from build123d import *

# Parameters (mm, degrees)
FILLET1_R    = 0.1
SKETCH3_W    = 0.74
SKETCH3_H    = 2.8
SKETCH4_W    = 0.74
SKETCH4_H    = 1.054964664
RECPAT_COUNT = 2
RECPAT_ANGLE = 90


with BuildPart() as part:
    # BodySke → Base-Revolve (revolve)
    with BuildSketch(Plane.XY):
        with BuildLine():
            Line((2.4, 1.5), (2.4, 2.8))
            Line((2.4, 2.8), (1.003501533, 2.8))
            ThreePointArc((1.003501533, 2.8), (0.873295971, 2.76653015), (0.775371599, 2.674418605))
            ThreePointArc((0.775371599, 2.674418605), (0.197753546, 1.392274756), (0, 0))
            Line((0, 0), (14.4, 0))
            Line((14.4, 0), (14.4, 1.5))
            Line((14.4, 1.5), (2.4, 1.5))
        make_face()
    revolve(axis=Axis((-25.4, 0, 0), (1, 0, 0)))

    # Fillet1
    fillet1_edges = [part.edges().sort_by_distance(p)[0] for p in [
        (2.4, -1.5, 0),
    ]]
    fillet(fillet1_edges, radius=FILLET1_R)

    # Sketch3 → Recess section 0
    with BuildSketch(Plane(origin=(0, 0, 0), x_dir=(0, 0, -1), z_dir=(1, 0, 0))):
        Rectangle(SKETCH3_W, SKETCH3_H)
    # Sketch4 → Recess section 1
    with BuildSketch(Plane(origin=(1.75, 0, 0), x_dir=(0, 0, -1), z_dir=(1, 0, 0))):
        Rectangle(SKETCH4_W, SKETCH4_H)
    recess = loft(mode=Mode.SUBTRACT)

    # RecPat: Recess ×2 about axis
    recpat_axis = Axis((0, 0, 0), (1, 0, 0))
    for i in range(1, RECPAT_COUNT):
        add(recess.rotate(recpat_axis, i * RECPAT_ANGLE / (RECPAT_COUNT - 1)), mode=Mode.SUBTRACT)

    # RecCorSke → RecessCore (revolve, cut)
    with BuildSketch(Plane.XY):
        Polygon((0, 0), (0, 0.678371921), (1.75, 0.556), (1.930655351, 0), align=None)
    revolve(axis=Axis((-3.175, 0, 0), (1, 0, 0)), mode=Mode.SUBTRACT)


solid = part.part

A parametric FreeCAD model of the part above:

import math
import FreeCAD as App
import Part
import Sketcher

V = App.Vector
Q = App.Units.Quantity


def edges_at(feature, points):
    """Names of the edges that pass closest to the given points."""
    edges = feature.Shape.Edges
    near = lambda p: min(range(len(edges)), key=lambda i: edges[i].distToShape(Part.Vertex(*p))[0])
    return sorted({f"Edge{near(p) + 1}" for p in points})


def add_polygon(sketch, points):
    """Adds a closed chain of lines whose ends are joined by coincident constraints."""
    first, n = sketch.GeometryCount, len(points)
    for a, b in zip(points, points[1:] + points[:1]):
        sketch.addGeometry(Part.LineSegment(App.Vector(*a, 0), App.Vector(*b, 0)), False)
    for i in range(n):
        sketch.addConstraint(Sketcher.Constraint("Coincident", first + i, 2, first + (i + 1) % n, 1))

doc = App.newDocument("Part")
body = doc.addObject("PartDesign::Body", "Body")

# Sketch on XY plane
sketch1 = doc.addObject("Sketcher::SketchObject", "Sketch")
body.addObject(sketch1)
sketch1.AttachmentSupport = (doc.XY_Plane, [""])
sketch1.MapMode = "FlatFace"
sketch1.addGeometry([
    Part.LineSegment(V(2.4, 1.5, 0), V(2.4, 2.8, 0)),  # 0
    Part.LineSegment(V(2.4, 2.8, 0), V(1, 2.8, 0)),  # 1
    Part.ArcOfCircle(Part.Circle(V(1, 2.53, 0), V(0, 0, 1), 0.27), math.radians(90), math.radians(148)),  # 2
    Part.ArcOfCircle(Part.Circle(V(5, 0, 0), V(0, 0, 1), 5), math.radians(148), math.radians(180)),  # 3
    Part.LineSegment(V(0, 0, 0), V(14.4, 0, 0)),  # 4
    Part.LineSegment(V(14.4, 0, 0), V(14.4, 1.5, 0)),  # 5
    Part.LineSegment(V(14.4, 1.5, 0), V(2.4, 1.5, 0)),  # 6
], False)
sketch1.addConstraint([
    Sketcher.Constraint("Coincident", 0, 2, 1, 1),
    Sketcher.Constraint("Tangent", 1, 2, 2, 1),
    Sketcher.Constraint("Tangent", 2, 2, 3, 1),
    Sketcher.Constraint("Coincident", 3, 2, 4, 1),
    Sketcher.Constraint("Coincident", 4, 2, 5, 1),
    Sketcher.Constraint("Coincident", 5, 2, 6, 1),
    Sketcher.Constraint("Coincident", 6, 2, 0, 1),
    Sketcher.Constraint("Vertical", 0),
    Sketcher.Constraint("Horizontal", 1),
    Sketcher.Constraint("Horizontal", 4),
    Sketcher.Constraint("Vertical", 5),
    Sketcher.Constraint("Horizontal", 6),
    Sketcher.Constraint("Coincident", 3, 2, -1, 1),
    Sketcher.Constraint("PointOnObject", 3, 3, -1),
    Sketcher.Constraint("Radius", 3, 5.0),
    Sketcher.Constraint("DistanceX", 6, 2, 6, 1, 12.0),
    Sketcher.Constraint("Radius", 2, 0.27),
    Sketcher.Constraint("DistanceX", 4, 1, 4, 2, 14.4),
    Sketcher.Constraint("DistanceY", 0, 1, 0, 2, 1.3),
    Sketcher.Constraint("DistanceY", 5, 1, 5, 2, 1.5),
])
revolution = doc.addObject("PartDesign::Revolution", "Revolution")
body.addObject(revolution)
revolution.Profile = sketch1
revolution.ReferenceAxis = (sketch1, ["H_Axis"])
revolution.Angle = 360
doc.recompute()

fillet = doc.addObject("PartDesign::Fillet", "Fillet")
body.addObject(fillet)
fillet.Base = (revolution, edges_at(revolution, [(2.4, -1.5, 0)]))
fillet.Radius = 0.1

# Sketch on YZ plane
sketch2 = doc.addObject("Sketcher::SketchObject", "Sketch001")
body.addObject(sketch2)
sketch2.AttachmentSupport = (doc.YZ_Plane, [""])
sketch2.MapMode = "FlatFace"
add_polygon(sketch2, [(1.4, 0.4), (-1.4, 0.4), (-1.4, -0.4), (1.4, -0.4)])  # lines 0-3
sketch2.addConstraint([
    Sketcher.Constraint("Horizontal", 0),
    Sketcher.Constraint("Vertical", 1),
    Sketcher.Constraint("Horizontal", 2),
    Sketcher.Constraint("Vertical", 3),
    Sketcher.Constraint("Symmetric", 0, 2, 2, 2, -1, 1),
    Sketcher.Constraint("DistanceX", 0, 2, 0, 1, 2.8),
    Sketcher.Constraint("DistanceY", 1, 2, 1, 1, 0.74),
])

# Sketch on YZ plane
sketch3 = doc.addObject("Sketcher::SketchObject", "Sketch002")
body.addObject(sketch3)
sketch3.AttachmentSupport = (doc.YZ_Plane, [""])
sketch3.MapMode = "FlatFace"
sketch3.AttachmentOffset = App.Placement(V(0, 0, 1.75), App.Rotation())
add_polygon(sketch3, [(0.5, 0.4), (-0.5, 0.4), (-0.5, -0.4), (0.5, -0.4)])  # lines 0-3
sketch3.addConstraint([
    Sketcher.Constraint("Horizontal", 0),
    Sketcher.Constraint("Vertical", 1),
    Sketcher.Constraint("Horizontal", 2),
    Sketcher.Constraint("Vertical", 3),
    Sketcher.Constraint("Symmetric", 0, 2, 2, 2, -1, 1),
    Sketcher.Constraint("DistanceY", 1, 2, 1, 1, 0.74),
    Sketcher.Constraint("DistanceX", 0, 2, 0, 1, 1.054965),
])

subtractiveloft = doc.addObject("PartDesign::SubtractiveLoft", "SubtractiveLoft")
body.addObject(subtractiveloft)
subtractiveloft.Profile = sketch2
subtractiveloft.Sections = [sketch3]
doc.recompute()

polarpattern = doc.addObject("PartDesign::PolarPattern", "PolarPattern")
body.addObject(polarpattern)
polarpattern.Originals = [subtractiveloft]
polarpattern.Axis = (doc.X_Axis, [""])
polarpattern.Angle = 90
polarpattern.Occurrences = 2
body.Tip = polarpattern

# Sketch on XY plane
sketch4 = doc.addObject("Sketcher::SketchObject", "Sketch003")
body.addObject(sketch4)
sketch4.AttachmentSupport = (doc.XY_Plane, [""])
sketch4.MapMode = "FlatFace"
add_polygon(sketch4, [(0, 0.7), (0, 0), (1.9, 0), (1.8, 0.6)])  # lines 0-3
sketch4.addConstraint([
    Sketcher.Constraint("Vertical", 0),
    Sketcher.Constraint("Horizontal", 1),
    Sketcher.Constraint("Coincident", 0, 2, -1, 1),
    Sketcher.Constraint("Angle", 2, Q("108 deg")),
    Sketcher.Constraint("Angle", 3, Q("176 deg")),
    Sketcher.Constraint("DistanceX", -1, 1, 2, 2, 1.75),
    Sketcher.Constraint("DistanceY", -1, 1, 2, 2, 0.556),
])
groove = doc.addObject("PartDesign::Groove", "Groove")
body.addObject(groove)
groove.Profile = sketch4
groove.ReferenceAxis = (sketch4, ["H_Axis"])
groove.Angle = 360

doc.recompute()
